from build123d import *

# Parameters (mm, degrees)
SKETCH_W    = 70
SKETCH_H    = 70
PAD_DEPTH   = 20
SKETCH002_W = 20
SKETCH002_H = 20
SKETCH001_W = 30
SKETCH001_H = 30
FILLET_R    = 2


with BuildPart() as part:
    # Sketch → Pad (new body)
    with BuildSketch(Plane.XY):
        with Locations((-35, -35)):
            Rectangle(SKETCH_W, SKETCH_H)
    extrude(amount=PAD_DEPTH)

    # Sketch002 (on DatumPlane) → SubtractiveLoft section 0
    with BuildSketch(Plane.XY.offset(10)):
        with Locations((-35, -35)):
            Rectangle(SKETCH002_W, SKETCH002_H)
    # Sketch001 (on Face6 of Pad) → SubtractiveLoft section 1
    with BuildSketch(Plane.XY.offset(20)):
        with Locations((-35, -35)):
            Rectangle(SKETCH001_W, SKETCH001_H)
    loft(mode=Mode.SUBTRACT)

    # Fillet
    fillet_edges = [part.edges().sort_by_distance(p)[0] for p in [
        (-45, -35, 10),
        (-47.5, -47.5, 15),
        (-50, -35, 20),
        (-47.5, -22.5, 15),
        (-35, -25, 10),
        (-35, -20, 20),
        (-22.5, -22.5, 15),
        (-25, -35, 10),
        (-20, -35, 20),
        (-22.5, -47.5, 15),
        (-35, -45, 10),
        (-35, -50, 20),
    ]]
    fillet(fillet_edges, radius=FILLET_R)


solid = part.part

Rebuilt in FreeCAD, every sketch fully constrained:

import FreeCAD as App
import Part
import Sketcher


def edges_at(feature, points):
    """Names of the edges that pass closest to the given points."""
    edges = feature.Shape.Edges
    near = lambda p: min(range(len(edges)), key=lambda i: edges[i].distToShape(Part.Vertex(*p))[0])
    return sorted({f"Edge{near(p) + 1}" for p in points})


def add_polygon(sketch, points):
    """Adds a closed chain of lines whose ends are joined by coincident constraints."""
    first, n = sketch.GeometryCount, len(points)
    for a, b in zip(points, points[1:] + points[:1]):
        sketch.addGeometry(Part.LineSegment(App.Vector(*a, 0), App.Vector(*b, 0)), False)
    for i in range(n):
        sketch.addConstraint(Sketcher.Constraint("Coincident", first + i, 2, first + (i + 1) % n, 1))

doc = App.newDocument("Part")
body = doc.addObject("PartDesign::Body", "Body")

# Sketch on XY plane
sketch1 = body.newObject("Sketcher::SketchObject", "Sketch")
sketch1.AttachmentSupport = (doc.getObject("XY_Plane"), [""])
sketch1.MapMode = "FlatFace"
add_polygon(sketch1, [(-70, 0), (-70, -70), (0, -70), (0, 0)])  # lines 0-3
sketch1.addConstraint(Sketcher.Constraint("Vertical", 0))
sketch1.addConstraint(Sketcher.Constraint("Horizontal", 1))
sketch1.addConstraint(Sketcher.Constraint("Vertical", 2))
sketch1.addConstraint(Sketcher.Constraint("Horizontal", 3))
sketch1.addConstraint(Sketcher.Constraint("Coincident", 2, 2, -1, 1))
sketch1.addConstraint(Sketcher.Constraint("Equal", 3, 0))
sketch1.addConstraint(Sketcher.Constraint("DistanceX", 1, 1, 1, 2, 70.0))
pad1 = body.newObject("PartDesign::Pad", "Pad")
pad1.Profile = sketch1
pad1.Length = 20

# Sketch on XY plane
sketch2 = body.newObject("Sketcher::SketchObject", "Sketch001")
sketch2.AttachmentSupport = (doc.getObject("XY_Plane"), [""])
sketch2.MapMode = "FlatFace"
sketch2.AttachmentOffset = App.Placement(App.Vector(0, 0, 10), App.Rotation())
add_polygon(sketch2, [(-45, -25), (-45, -45), (-25, -45), (-25, -25)])  # lines 0-3
sketch2.addConstraint(Sketcher.Constraint("Vertical", 0))
sketch2.addConstraint(Sketcher.Constraint("Horizontal", 1))
sketch2.addConstraint(Sketcher.Constraint("Vertical", 2))
sketch2.addConstraint(Sketcher.Constraint("Horizontal", 3))
sketch2.addConstraint(Sketcher.Constraint("Equal", 3, 0))
sketch2.addConstraint(Sketcher.Constraint("DistanceX", 1, 1, 1, 2, 20.0))
sketch2.addConstraint(Sketcher.Constraint("DistanceX", 0, 2, -1, 1, 45.0))
sketch2.addConstraint(Sketcher.Constraint("DistanceY", 0, 2, -1, 1, 45.0))

# Sketch on XY plane
sketch3 = body.newObject("Sketcher::SketchObject", "Sketch002")
sketch3.AttachmentSupport = (doc.getObject("XY_Plane"), [""])
sketch3.MapMode = "FlatFace"
sketch3.AttachmentOffset = App.Placement(App.Vector(0, 0, 20), App.Rotation())
add_polygon(sketch3, [(-50, -20), (-50, -50), (-20, -50), (-20, -20)])  # lines 0-3
sketch3.addConstraint(Sketcher.Constraint("Vertical", 0))
sketch3.addConstraint(Sketcher.Constraint("Horizontal", 1))
sketch3.addConstraint(Sketcher.Constraint("Vertical", 2))
sketch3.addConstraint(Sketcher.Constraint("Horizontal", 3))
sketch3.addConstraint(Sketcher.Constraint("Equal", 3, 0))
sketch3.addConstraint(Sketcher.Constraint("DistanceX", 1, 1, 1, 2, 30.0))
sketch3.addConstraint(Sketcher.Constraint("DistanceX", 0, 2, -1, 1, 50.0))
sketch3.addConstraint(Sketcher.Constraint("DistanceY", 0, 2, -1, 1, 50.0))

subtractiveloft = body.newObject("PartDesign::SubtractiveLoft", "SubtractiveLoft")
subtractiveloft.Profile = sketch2
subtractiveloft.Sections = [sketch3]
doc.recompute()

fillet = body.newObject("PartDesign::Fillet", "Fillet")
fillet.Base = (subtractiveloft, edges_at(subtractiveloft, [
    (-45, -35, 10),
    (-47.5, -47.5, 15),
    (-50, -35, 20),
    (-47.5, -22.5, 15),
    (-35, -25, 10),
    (-35, -20, 20),
    (-22.5, -22.5, 15),
    (-25, -35, 10),
    (-20, -35, 20),
    (-22.5, -47.5, 15),
    (-35, -45, 10),
    (-35, -50, 20),
]))
fillet.Radius = 2

doc.recompute()
